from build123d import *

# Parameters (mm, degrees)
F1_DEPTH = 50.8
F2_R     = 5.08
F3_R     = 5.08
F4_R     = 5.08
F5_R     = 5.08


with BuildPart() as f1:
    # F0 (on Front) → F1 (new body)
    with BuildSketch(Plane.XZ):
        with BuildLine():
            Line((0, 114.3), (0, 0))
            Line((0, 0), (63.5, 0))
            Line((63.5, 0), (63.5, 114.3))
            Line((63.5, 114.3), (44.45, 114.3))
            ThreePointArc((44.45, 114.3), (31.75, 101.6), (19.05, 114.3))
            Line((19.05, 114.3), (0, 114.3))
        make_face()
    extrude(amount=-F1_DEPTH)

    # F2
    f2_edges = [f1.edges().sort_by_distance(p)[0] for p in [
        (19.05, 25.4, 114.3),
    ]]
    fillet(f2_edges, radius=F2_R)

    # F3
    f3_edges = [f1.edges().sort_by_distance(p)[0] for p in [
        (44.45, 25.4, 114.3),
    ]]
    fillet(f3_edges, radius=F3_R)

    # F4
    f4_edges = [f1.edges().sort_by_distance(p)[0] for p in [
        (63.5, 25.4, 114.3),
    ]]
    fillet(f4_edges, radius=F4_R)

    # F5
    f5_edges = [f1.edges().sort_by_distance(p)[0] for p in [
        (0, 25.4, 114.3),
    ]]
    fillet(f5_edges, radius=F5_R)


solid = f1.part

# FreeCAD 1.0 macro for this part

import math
import FreeCAD as App
import Part
import Sketcher
from FreeCAD import Vector
Q = App.Units.Quantity


def edges_at(feature, points):
    """Names of the edges that pass closest to the given points."""
    edges = feature.Shape.Edges
    near = lambda p: min(range(len(edges)), key=lambda i: edges[i].distToShape(Part.Vertex(*p))[0])
    return sorted({f"Edge{near(p) + 1}" for p in points})

doc = App.newDocument("Part")
body = doc.addObject("PartDesign::Body", "Body")

sketch1 = body.newObject("Sketcher::SketchObject", "Sketch")
sketch1.AttachmentSupport = (doc.getObject("XZ_Plane"), [""])
sketch1.MapMode = "FlatFace"
sketch1.addGeometry(Part.LineSegment(Vector(0, 114, 0), Vector(0, 0, 0)), False)
sketch1.addGeometry(Part.LineSegment(Vector(0, 0, 0), Vector(64, 0, 0)), False)
sketch1.addGeometry(Part.LineSegment(Vector(64, 0, 0), Vector(64, 114, 0)), False)
sketch1.addGeometry(Part.LineSegment(Vector(64, 114, 0), Vector(44, 114, 0)), False)
sketch1.addGeometry(Part.ArcOfCircle(Part.Circle(Vector(32, 114, 0), Vector(0, 0, 1), 13), math.radians(180), math.radians(360)), False)
sketch1.addGeometry(Part.LineSegment(Vector(19, 114, 0), Vector(0, 114, 0)), False)
sketch1.addConstraint(Sketcher.Constraint("Coincident", 0, 2, 1, 1))
sketch1.addConstraint(Sketcher.Constraint("Coincident", 1, 2, 2, 1))
sketch1.addConstraint(Sketcher.Constraint("Coincident", 2, 2, 3, 1))
sketch1.addConstraint(Sketcher.Constraint("Coincident", 3, 2, 4, 2))
sketch1.addConstraint(Sketcher.Constraint("Coincident", 4, 1, 5, 1))
sketch1.addConstraint(Sketcher.Constraint("Coincident", 5, 2, 0, 1))
sketch1.addConstraint(Sketcher.Constraint("Vertical", 0))
sketch1.addConstraint(Sketcher.Constraint("Horizontal", 1))
sketch1.addConstraint(Sketcher.Constraint("Vertical", 2))
sketch1.addConstraint(Sketcher.Constraint("Horizontal", 3))
sketch1.addConstraint(Sketcher.Constraint("Horizontal", 5))
sketch1.addConstraint(Sketcher.Constraint("Coincident", 0, 2, -1, 1))
sketch1.addConstraint(Sketcher.Constraint("Horizontal", 4, 3, 2, 2))
sketch1.addConstraint(Sketcher.Constraint("Horizontal", 3, 2, 4, 1))
sketch1.addConstraint(Sketcher.Constraint("Equal", 3, 5))
sketch1.addConstraint(Sketcher.Constraint("Radius", 4, Q("0.5 in")))
sketch1.addConstraint(Sketcher.Constraint("DistanceX", 1, 1, 1, 2, Q("2.5 in")))
sketch1.addConstraint(Sketcher.Constraint("DistanceY", 0, 2, 0, 1, Q("4.5 in")))
pad1 = body.newObject("PartDesign::Pad", "Pad")
pad1.Profile = sketch1
pad1.Length = Q("2 in")
pad1.Reversed = True
doc.recompute()

fillet = body.newObject("PartDesign::Fillet", "Fillet")
fillet.Base = (pad1, edges_at(pad1, [(19.05, 25.4, 114.3)]))
fillet.Radius = Q("0.2 in")
doc.recompute()

fillet2 = body.newObject("PartDesign::Fillet", "Fillet001")
fillet2.Base = (fillet, edges_at(fillet, [(44.45, 25.4, 114.3)]))
fillet2.Radius = Q("0.2 in")
doc.recompute()

fillet3 = body.newObject("PartDesign::Fillet", "Fillet002")
fillet3.Base = (fillet2, edges_at(fillet2, [(63.5, 25.4, 114.3)]))
fillet3.Radius = Q("0.2 in")
doc.recompute()

fillet4 = body.newObject("PartDesign::Fillet", "Fillet003")
fillet4.Base = (fillet3, edges_at(fillet3, [(0, 25.4, 114.3)]))
fillet4.Radius = Q("0.2 in")

doc.recompute()
